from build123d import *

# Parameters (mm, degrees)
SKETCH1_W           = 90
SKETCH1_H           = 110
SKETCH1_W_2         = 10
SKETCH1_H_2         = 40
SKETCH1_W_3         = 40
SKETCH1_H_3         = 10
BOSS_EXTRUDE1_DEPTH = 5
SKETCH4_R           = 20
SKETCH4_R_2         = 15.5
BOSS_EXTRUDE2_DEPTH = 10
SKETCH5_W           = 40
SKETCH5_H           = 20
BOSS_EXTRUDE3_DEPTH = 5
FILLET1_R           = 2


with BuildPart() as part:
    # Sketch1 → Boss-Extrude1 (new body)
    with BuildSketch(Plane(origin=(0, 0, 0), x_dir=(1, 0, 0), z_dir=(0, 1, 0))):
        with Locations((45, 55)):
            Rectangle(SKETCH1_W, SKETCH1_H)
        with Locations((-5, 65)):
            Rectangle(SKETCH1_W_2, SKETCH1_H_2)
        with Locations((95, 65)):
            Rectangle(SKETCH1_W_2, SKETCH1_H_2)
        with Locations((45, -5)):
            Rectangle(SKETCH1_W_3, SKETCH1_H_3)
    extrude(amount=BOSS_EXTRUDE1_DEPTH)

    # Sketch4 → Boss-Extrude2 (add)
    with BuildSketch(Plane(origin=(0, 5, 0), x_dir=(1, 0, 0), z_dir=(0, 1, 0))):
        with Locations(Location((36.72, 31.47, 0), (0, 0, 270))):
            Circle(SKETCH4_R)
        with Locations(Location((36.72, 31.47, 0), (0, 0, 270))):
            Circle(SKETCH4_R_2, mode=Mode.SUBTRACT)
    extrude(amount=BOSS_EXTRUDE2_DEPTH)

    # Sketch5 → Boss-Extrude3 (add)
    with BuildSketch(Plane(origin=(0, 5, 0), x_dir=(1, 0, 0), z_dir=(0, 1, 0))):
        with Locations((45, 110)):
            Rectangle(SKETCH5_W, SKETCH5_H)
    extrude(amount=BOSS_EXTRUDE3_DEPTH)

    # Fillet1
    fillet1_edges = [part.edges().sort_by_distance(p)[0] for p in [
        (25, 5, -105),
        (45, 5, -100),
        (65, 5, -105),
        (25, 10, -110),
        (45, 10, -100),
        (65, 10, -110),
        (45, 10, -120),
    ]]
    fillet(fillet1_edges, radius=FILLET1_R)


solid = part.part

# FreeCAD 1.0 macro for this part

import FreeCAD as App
import Part
import Sketcher
Q = App.Units.Quantity


def edges_at(feature, points):
    """Names of the edges that pass closest to the given points."""
    edges = feature.Shape.Edges
    near = lambda p: min(range(len(edges)), key=lambda i: edges[i].distToShape(Part.Vertex(*p))[0])
    return sorted({f"Edge{near(p) + 1}" for p in points})

doc = App.newDocument("Part")
body = doc.addObject("PartDesign::Body", "Body")

# Sketch on XZ plane
sketch1 = body.newObject("Sketcher::SketchObject", "Sketch")
sketch1.AttachmentSupport = (doc.getObject("XZ_Plane"), [""])
sketch1.MapMode = "FlatFace"
sketch1.addGeometry(Part.LineSegment(App.Vector(0, -45, 0), App.Vector(0, 0, 0)), False)
sketch1.addGeometry(Part.LineSegment(App.Vector(0, 0, 0), App.Vector(25, 0, 0)), False)
sketch1.addGeometry(Part.LineSegment(App.Vector(25, 0, 0), App.Vector(25, 10, 0)), False)
sketch1.addGeometry(Part.LineSegment(App.Vector(25, 10, 0), App.Vector(65, 10, 0)), False)
sketch1.addGeometry(Part.LineSegment(App.Vector(65, 10, 0), App.Vector(65, 0, 0)), False)
sketch1.addGeometry(Part.LineSegment(App.Vector(65, 0, 0), App.Vector(90, 0, 0)), False)
sketch1.addGeometry(Part.LineSegment(App.Vector(90, 0, 0), App.Vector(90, -45, 0)), False)
sketch1.addGeometry(Part.LineSegment(App.Vector(90, -45, 0), App.Vector(100, -45, 0)), False)
sketch1.addGeometry(Part.LineSegment(App.Vector(100, -45, 0), App.Vector(100, -85, 0)), False)
sketch1.addGeometry(Part.LineSegment(App.Vector(100, -85, 0), App.Vector(90, -85, 0)), False)
sketch1.addGeometry(Part.LineSegment(App.Vector(90, -85, 0), App.Vector(90, -110, 0)), False)
sketch1.addGeometry(Part.LineSegment(App.Vector(90, -110, 0), App.Vector(0, -110, 0)), False)
sketch1.addGeometry(Part.LineSegment(App.Vector(0, -110, 0), App.Vector(0, -85, 0)), False)
sketch1.addGeometry(Part.LineSegment(App.Vector(0, -85, 0), App.Vector(-10, -85, 0)), False)
sketch1.addGeometry(Part.LineSegment(App.Vector(-10, -85, 0), App.Vector(-10, -45, 0)), False)
sketch1.addGeometry(Part.LineSegment(App.Vector(-10, -45, 0), App.Vector(0, -45, 0)), False)
sketch1.addConstraint(Sketcher.Constraint("Coincident", 0, 2, 1, 1))
sketch1.addConstraint(Sketcher.Constraint("Coincident", 1, 2, 2, 1))
sketch1.addConstraint(Sketcher.Constraint("Coincident", 2, 2, 3, 1))
sketch1.addConstraint(Sketcher.Constraint("Coincident", 3, 2, 4, 1))
sketch1.addConstraint(Sketcher.Constraint("Coincident", 4, 2, 5, 1))
sketch1.addConstraint(Sketcher.Constraint("Coincident", 5, 2, 6, 1))
sketch1.addConstraint(Sketcher.Constraint("Coincident", 6, 2, 7, 1))
sketch1.addConstraint(Sketcher.Constraint("Coincident", 7, 2, 8, 1))
sketch1.addConstraint(Sketcher.Constraint("Coincident", 8, 2, 9, 1))
sketch1.addConstraint(Sketcher.Constraint("Coincident", 9, 2, 10, 1))
sketch1.addConstraint(Sketcher.Constraint("Coincident", 10, 2, 11, 1))
sketch1.addConstraint(Sketcher.Constraint("Coincident", 11, 2, 12, 1))
sketch1.addConstraint(Sketcher.Constraint("Coincident", 12, 2, 13, 1))
sketch1.addConstraint(Sketcher.Constraint("Coincident", 13, 2, 14, 1))
sketch1.addConstraint(Sketcher.Constraint("Coincident", 14, 2, 15, 1))
sketch1.addConstraint(Sketcher.Constraint("Coincident", 15, 2, 0, 1))
sketch1.addConstraint(Sketcher.Constraint("Vertical", 0))
sketch1.addConstraint(Sketcher.Constraint("Horizontal", 1))
sketch1.addConstraint(Sketcher.Constraint("Vertical", 2))
sketch1.addConstraint(Sketcher.Constraint("Horizontal", 3))
sketch1.addConstraint(Sketcher.Constraint("Vertical", 4))
sketch1.addConstraint(Sketcher.Constraint("Horizontal", 5))
sketch1.addConstraint(Sketcher.Constraint("Vertical", 6))
sketch1.addConstraint(Sketcher.Constraint("Horizontal", 7))
sketch1.addConstraint(Sketcher.Constraint("Vertical", 8))
sketch1.addConstraint(Sketcher.Constraint("Horizontal", 9))
sketch1.addConstraint(Sketcher.Constraint("Vertical", 10))
sketch1.addConstraint(Sketcher.Constraint("Horizontal", 11))
sketch1.addConstraint(Sketcher.Constraint("Vertical", 12))
sketch1.addConstraint(Sketcher.Constraint("Horizontal", 13))
sketch1.addConstraint(Sketcher.Constraint("Vertical", 14))
sketch1.addConstraint(Sketcher.Constraint("Horizontal", 15))
sketch1.addConstraint(Sketcher.Constraint("Coincident", 0, 2, -1, 1))
sketch1.addConstraint(Sketcher.Constraint("PointOnObject", 4, 2, -1))
sketch1.addConstraint(Sketcher.Constraint("PointOnObject", 11, 2, -2))
sketch1.addConstraint(Sketcher.Constraint("Horizontal", 9, 2, 12, 2))
sketch1.addConstraint(Sketcher.Constraint("Horizontal", 7, 2, 14, 2))
sketch1.addConstraint(Sketcher.Constraint("Vertical", 6, 2, 9, 2))
sketch1.addConstraint(Sketcher.Constraint("Equal", 1, 5))
sketch1.addConstraint(Sketcher.Constraint("Equal", 9, 13))
sketch1.addConstraint(Sketcher.Constraint("Equal", 15, 2))
sketch1.addConstraint(Sketcher.Constraint("Equal", 3, 8))
sketch1.addConstraint(Sketcher.Constraint("Equal", 5, 10))
sketch1.addConstraint(Sketcher.Constraint("DistanceX", 1, 1, 1, 2, Q("25 mm")))
sketch1.addConstraint(Sketcher.Constraint("DistanceX", 3, 1, 3, 2, Q("40 mm")))
sketch1.addConstraint(Sketcher.Constraint("DistanceX", 7, 1, 7, 2, Q("10 mm")))
sketch1.addConstraint(Sketcher.Constraint("DistanceY", 0, 1, 0, 2, Q("45 mm")))
pad1 = body.newObject("PartDesign::Pad", "Pad")
pad1.Profile = sketch1
pad1.Length = 5
pad1.Reversed = True

# Sketch on XZ plane
sketch2 = body.newObject("Sketcher::SketchObject", "Sketch001")
sketch2.AttachmentSupport = (doc.getObject("XZ_Plane"), [""])
sketch2.MapMode = "FlatFace"
sketch2.AttachmentOffset = App.Placement(App.Vector(0, 0, -5), App.Rotation())
sketch2.addGeometry(Part.Circle(App.Vector(36.72, -31.47, 0), App.Vector(0, 0, 1), 20), False)
sketch2.addGeometry(Part.Circle(App.Vector(36.72, -31.47, 0), App.Vector(0, 0, 1), 15.5), False)
sketch2.addConstraint(Sketcher.Constraint("Coincident", 1, 3, 0, 3))
sketch2.addConstraint(Sketcher.Constraint("Diameter", 0, Q("40 mm")))
sketch2.addConstraint(Sketcher.Constraint("Diameter", 1, Q("31 mm")))
sketch2.addConstraint(Sketcher.Constraint("DistanceX", -1, 1, 0, 3, Q("36.72 mm")))
sketch2.addConstraint(Sketcher.Constraint("DistanceY", 0, 3, -1, 1, Q("31.47 mm")))
pad2 = body.newObject("PartDesign::Pad", "Pad001")
pad2.Profile = sketch2
pad2.Length = 10
pad2.Reversed = True

# Sketch on XZ plane
sketch3 = body.newObject("Sketcher::SketchObject", "Sketch002")
sketch3.AttachmentSupport = (doc.getObject("XZ_Plane"), [""])
sketch3.MapMode = "FlatFace"
sketch3.AttachmentOffset = App.Placement(App.Vector(0, 0, -5), App.Rotation())
sketch3.addGeometry(Part.LineSegment(App.Vector(25, -120, 0), App.Vector(25, -100, 0)), False)
sketch3.addGeometry(Part.LineSegment(App.Vector(25, -100, 0), App.Vector(65, -100, 0)), False)
sketch3.addGeometry(Part.LineSegment(App.Vector(65, -100, 0), App.Vector(65, -120, 0)), False)
sketch3.addGeometry(Part.LineSegment(App.Vector(65, -120, 0), App.Vector(25, -120, 0)), False)
sketch3.addConstraint(Sketcher.Constraint("Coincident", 0, 2, 1, 1))
sketch3.addConstraint(Sketcher.Constraint("Coincident", 1, 2, 2, 1))
sketch3.addConstraint(Sketcher.Constraint("Coincident", 2, 2, 3, 1))
sketch3.addConstraint(Sketcher.Constraint("Coincident", 3, 2, 0, 1))
sketch3.addConstraint(Sketcher.Constraint("Vertical", 0))
sketch3.addConstraint(Sketcher.Constraint("Horizontal", 1))
sketch3.addConstraint(Sketcher.Constraint("Vertical", 2))
sketch3.addConstraint(Sketcher.Constraint("Horizontal", 3))
sketch3.addConstraint(Sketcher.Constraint("DistanceX", 1, 1, 1, 2, Q("40 mm")))
sketch3.addConstraint(Sketcher.Constraint("DistanceY", 0, 1, 0, 2, Q("20 mm")))
sketch3.addConstraint(Sketcher.Constraint("DistanceX", -1, 1, 0, 2, Q("25 mm")))
sketch3.addConstraint(Sketcher.Constraint("DistanceY", 0, 2, -1, 1, Q("100 mm")))
pad3 = body.newObject("PartDesign::Pad", "Pad002")
pad3.Profile = sketch3
pad3.Length = 5
pad3.Reversed = True
doc.recompute()

fillet = body.newObject("PartDesign::Fillet", "Fillet")
fillet.Base = (pad3, edges_at(pad3, [
    (25, 5, -105),
    (45, 5, -100),
    (65, 5, -105),
    (25, 10, -110),
    (45, 10, -100),
    (65, 10, -110),
    (45, 10, -120),
]))
fillet.Radius = 2

doc.recompute()
